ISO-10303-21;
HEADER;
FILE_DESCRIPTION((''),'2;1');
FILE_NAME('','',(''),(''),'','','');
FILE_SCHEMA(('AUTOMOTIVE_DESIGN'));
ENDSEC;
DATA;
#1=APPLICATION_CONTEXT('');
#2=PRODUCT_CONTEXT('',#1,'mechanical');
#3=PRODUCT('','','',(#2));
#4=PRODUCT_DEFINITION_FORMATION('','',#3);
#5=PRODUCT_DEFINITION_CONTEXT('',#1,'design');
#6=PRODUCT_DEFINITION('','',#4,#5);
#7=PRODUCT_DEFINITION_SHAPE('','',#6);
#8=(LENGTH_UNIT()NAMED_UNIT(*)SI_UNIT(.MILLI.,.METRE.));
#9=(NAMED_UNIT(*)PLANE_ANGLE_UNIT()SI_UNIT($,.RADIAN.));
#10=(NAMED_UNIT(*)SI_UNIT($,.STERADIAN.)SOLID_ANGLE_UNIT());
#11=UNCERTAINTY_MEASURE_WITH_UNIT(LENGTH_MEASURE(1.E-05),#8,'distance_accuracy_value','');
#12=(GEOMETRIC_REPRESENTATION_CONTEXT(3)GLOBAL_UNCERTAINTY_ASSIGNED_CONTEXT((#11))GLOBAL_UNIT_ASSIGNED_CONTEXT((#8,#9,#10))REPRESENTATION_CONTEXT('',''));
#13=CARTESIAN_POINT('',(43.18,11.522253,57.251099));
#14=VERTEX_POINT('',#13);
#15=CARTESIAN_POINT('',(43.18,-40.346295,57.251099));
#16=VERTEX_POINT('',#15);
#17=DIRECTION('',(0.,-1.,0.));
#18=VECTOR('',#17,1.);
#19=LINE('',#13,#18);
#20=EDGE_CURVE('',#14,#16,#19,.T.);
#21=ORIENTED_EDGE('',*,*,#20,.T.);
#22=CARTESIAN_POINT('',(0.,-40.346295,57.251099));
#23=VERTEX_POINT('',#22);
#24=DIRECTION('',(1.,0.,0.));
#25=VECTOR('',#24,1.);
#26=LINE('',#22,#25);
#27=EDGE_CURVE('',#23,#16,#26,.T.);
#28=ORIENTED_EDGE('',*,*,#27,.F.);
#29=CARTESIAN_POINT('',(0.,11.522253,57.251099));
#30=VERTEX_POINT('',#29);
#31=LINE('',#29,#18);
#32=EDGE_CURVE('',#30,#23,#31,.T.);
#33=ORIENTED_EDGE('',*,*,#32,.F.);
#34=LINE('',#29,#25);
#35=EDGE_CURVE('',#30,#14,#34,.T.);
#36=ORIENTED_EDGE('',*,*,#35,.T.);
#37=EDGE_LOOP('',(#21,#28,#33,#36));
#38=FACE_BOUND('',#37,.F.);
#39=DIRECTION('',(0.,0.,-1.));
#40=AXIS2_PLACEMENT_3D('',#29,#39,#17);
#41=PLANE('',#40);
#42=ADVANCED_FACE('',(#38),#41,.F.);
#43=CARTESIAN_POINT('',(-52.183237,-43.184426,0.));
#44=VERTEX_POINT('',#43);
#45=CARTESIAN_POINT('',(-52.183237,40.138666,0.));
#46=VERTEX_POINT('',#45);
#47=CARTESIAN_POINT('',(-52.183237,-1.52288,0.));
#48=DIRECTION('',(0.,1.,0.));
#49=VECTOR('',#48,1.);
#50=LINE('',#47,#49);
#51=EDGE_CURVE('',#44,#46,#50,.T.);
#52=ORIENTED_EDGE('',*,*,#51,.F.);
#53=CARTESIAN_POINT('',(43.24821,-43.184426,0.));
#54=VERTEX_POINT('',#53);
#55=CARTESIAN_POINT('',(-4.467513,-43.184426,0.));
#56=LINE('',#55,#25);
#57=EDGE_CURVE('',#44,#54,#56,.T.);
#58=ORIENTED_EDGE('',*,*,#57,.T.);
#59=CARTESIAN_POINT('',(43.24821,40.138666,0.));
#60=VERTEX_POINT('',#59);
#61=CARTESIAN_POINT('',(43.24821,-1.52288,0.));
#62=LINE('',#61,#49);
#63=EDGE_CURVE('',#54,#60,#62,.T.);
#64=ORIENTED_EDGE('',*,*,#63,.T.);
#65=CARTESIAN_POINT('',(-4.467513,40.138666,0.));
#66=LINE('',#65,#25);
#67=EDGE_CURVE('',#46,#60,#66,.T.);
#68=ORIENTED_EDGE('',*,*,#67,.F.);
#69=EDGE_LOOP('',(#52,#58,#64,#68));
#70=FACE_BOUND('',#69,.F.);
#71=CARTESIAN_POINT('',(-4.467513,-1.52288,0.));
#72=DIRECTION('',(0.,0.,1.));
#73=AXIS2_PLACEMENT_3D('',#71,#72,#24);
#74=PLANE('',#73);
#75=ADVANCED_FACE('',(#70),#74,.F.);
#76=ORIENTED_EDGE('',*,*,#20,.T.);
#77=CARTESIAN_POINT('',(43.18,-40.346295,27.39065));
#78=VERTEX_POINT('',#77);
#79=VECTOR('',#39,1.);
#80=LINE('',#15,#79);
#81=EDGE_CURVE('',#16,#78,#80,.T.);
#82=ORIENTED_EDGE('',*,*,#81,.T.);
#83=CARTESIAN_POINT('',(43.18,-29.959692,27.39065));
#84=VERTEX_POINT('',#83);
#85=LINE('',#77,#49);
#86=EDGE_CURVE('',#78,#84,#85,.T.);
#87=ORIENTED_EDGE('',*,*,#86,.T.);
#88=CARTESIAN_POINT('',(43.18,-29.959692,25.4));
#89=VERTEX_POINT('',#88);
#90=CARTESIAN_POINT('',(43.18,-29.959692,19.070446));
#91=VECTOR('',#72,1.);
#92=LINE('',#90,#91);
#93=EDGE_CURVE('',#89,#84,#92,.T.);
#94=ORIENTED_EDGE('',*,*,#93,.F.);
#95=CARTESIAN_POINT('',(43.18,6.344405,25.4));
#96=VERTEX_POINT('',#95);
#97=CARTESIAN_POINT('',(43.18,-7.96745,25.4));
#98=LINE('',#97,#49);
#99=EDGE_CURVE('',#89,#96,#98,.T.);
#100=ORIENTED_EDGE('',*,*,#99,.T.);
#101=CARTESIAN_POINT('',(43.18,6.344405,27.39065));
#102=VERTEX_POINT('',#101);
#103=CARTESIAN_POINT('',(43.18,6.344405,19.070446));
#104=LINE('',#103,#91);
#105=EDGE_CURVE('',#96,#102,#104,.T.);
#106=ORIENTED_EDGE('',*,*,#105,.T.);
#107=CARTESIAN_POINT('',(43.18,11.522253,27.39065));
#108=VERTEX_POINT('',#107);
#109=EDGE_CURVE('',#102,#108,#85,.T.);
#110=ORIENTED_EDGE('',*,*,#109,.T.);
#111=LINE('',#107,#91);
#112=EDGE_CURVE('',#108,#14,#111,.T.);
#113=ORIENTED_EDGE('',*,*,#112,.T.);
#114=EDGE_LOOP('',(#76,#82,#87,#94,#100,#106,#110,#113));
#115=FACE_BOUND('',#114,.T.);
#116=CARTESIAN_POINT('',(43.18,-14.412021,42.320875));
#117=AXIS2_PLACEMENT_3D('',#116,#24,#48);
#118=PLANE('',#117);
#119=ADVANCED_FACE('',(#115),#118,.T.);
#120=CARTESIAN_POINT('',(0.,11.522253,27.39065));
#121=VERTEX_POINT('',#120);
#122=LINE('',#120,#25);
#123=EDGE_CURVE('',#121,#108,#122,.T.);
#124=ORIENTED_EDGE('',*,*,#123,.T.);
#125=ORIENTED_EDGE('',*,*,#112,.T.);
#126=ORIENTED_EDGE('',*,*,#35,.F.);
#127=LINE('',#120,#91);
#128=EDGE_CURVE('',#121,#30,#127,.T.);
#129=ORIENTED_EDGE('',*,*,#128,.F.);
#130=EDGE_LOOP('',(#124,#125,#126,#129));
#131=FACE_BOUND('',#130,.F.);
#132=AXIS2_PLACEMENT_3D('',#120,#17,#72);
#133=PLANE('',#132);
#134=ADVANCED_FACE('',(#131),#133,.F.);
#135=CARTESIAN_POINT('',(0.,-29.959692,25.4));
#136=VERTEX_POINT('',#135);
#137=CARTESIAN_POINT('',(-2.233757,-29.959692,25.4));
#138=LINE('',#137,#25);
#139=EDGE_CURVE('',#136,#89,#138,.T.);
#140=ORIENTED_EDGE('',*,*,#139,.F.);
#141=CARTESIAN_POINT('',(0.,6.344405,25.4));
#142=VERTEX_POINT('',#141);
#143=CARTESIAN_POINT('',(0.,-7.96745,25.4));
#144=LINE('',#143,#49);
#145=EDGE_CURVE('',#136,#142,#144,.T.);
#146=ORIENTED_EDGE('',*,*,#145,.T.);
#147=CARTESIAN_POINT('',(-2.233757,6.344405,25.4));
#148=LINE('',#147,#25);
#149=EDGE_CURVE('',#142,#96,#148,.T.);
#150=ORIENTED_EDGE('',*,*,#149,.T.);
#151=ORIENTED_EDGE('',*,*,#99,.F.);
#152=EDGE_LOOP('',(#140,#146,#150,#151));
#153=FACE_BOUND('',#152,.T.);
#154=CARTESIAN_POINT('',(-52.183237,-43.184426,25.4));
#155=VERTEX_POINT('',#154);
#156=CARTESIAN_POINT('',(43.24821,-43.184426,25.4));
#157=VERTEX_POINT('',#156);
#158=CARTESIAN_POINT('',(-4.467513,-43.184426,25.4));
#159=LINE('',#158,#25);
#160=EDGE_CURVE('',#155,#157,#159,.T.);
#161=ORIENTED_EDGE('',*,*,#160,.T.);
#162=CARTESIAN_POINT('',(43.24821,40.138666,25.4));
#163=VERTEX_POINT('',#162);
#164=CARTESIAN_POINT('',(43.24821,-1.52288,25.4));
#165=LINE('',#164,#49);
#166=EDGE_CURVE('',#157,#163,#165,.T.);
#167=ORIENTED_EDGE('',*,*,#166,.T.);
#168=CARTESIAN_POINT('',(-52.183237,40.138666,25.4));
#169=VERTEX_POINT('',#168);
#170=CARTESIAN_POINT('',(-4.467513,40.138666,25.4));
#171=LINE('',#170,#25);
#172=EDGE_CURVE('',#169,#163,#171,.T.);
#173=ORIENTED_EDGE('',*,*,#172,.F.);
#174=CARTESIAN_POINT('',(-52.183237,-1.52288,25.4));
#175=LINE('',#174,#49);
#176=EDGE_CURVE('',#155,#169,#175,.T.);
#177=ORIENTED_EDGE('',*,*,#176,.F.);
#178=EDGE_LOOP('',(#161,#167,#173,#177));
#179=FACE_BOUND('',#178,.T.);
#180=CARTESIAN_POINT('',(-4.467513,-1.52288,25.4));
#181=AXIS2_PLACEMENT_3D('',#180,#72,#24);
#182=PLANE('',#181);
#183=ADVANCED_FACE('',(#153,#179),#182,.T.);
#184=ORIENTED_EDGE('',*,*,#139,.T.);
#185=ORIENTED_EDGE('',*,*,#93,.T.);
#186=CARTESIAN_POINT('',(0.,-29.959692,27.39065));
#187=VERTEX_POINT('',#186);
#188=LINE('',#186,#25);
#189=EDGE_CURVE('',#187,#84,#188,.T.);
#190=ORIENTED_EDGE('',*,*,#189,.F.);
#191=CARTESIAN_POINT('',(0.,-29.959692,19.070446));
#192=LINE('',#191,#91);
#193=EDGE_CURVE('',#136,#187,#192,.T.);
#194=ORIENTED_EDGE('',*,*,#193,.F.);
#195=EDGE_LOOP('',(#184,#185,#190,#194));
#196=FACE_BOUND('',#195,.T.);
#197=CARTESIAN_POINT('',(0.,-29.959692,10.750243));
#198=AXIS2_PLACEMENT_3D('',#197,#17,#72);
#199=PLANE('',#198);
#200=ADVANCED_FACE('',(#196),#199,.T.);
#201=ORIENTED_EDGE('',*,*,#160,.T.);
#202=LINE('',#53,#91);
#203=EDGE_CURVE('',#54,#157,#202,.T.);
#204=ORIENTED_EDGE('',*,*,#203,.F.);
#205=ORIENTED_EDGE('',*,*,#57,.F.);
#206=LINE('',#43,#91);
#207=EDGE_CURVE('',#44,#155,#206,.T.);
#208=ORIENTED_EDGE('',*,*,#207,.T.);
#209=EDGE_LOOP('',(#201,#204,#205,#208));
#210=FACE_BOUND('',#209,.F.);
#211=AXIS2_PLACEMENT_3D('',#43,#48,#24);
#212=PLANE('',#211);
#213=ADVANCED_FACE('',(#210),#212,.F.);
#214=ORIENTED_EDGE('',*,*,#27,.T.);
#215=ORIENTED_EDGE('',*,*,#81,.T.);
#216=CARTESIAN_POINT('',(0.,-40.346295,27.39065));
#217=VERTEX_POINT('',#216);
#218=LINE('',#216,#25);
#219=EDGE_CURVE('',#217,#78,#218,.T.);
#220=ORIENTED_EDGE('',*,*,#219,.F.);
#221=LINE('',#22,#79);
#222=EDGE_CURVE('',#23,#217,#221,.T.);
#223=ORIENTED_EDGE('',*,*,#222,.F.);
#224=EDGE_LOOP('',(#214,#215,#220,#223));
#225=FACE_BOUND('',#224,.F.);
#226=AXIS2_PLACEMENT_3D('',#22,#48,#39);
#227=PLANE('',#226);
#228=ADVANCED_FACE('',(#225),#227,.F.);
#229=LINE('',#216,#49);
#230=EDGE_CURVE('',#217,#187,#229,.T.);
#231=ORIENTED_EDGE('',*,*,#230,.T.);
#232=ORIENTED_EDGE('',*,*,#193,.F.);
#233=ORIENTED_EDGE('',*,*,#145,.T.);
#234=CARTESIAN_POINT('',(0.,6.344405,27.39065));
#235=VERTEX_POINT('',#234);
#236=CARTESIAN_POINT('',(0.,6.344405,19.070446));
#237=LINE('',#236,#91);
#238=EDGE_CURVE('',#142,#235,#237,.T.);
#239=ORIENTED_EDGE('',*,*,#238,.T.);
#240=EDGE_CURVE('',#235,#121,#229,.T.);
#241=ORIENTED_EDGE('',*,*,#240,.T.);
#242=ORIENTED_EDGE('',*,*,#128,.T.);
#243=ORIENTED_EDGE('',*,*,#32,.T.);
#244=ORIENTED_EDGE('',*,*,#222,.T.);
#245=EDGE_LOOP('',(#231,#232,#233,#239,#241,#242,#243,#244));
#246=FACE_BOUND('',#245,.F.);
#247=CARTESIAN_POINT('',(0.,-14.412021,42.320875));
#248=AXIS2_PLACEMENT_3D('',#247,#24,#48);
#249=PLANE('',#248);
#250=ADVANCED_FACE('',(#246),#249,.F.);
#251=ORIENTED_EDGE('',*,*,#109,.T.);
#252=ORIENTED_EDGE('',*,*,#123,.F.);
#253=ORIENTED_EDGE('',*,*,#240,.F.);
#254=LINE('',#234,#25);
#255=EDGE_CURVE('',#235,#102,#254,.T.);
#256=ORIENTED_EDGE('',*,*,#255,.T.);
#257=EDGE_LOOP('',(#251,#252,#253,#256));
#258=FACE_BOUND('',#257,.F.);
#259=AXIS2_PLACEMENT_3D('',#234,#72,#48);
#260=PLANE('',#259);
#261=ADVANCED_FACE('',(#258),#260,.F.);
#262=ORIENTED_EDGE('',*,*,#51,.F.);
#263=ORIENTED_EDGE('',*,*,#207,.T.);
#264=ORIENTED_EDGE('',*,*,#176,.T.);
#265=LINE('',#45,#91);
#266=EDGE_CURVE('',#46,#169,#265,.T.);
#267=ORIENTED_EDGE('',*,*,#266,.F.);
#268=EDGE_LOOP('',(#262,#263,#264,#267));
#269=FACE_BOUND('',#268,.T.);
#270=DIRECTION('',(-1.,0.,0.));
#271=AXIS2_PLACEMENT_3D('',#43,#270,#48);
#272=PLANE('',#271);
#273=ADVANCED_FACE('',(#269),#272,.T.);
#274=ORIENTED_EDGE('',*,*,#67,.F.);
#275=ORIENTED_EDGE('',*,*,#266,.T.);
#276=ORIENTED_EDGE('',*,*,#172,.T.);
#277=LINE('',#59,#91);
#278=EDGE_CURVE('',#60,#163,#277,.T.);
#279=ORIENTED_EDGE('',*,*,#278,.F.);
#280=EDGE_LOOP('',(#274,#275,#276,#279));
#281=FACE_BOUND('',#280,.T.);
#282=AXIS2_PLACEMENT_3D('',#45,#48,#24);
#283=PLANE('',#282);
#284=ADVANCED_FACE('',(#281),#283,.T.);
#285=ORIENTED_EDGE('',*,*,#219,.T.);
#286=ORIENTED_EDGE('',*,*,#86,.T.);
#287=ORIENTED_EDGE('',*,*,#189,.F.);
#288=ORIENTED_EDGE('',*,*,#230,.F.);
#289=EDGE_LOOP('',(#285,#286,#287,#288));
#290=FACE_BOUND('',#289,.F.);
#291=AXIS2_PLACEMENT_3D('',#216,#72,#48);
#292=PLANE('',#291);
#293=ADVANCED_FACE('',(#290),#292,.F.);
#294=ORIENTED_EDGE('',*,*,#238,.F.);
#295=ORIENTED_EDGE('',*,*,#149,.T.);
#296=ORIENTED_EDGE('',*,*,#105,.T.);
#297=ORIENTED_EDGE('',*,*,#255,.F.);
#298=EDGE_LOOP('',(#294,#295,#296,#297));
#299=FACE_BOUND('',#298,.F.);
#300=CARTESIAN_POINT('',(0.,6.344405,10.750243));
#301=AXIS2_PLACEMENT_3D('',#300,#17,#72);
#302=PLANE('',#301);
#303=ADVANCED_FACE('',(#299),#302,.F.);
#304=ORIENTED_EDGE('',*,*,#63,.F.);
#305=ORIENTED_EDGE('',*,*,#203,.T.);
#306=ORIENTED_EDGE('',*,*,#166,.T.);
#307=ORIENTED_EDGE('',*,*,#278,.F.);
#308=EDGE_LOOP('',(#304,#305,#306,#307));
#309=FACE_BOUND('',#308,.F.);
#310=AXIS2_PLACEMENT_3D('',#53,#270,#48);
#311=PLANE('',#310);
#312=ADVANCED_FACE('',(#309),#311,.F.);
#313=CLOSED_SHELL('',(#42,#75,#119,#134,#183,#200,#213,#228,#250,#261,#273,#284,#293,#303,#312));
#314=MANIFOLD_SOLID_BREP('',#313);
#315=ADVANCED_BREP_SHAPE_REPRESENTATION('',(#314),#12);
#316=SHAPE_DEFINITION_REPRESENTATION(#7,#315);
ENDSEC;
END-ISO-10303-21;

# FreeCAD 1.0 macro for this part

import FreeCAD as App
import Part
import Sketcher
from FreeCAD import Vector
Q = App.Units.Quantity


def add_polygon(sketch, points):
    """Adds a closed chain of lines whose ends are joined by coincident constraints."""
    first, n = sketch.GeometryCount, len(points)
    for a, b in zip(points, points[1:] + points[:1]):
        sketch.addGeometry(Part.LineSegment(App.Vector(*a, 0), App.Vector(*b, 0)), False)
    for i in range(n):
        sketch.addConstraint(Sketcher.Constraint("Coincident", first + i, 2, first + (i + 1) % n, 1))

doc = App.newDocument("Part")
body = doc.addObject("PartDesign::Body", "Body")

sketch1 = doc.addObject("Sketcher::SketchObject", "Sketch")
body.addObject(sketch1)
sketch1.AttachmentSupport = (doc.XY_Plane, [""])
sketch1.MapMode = "FlatFace"
add_polygon(sketch1, [(-52.183237, 40.138666), (-52.183237, -43.184426), (43.24821, -43.184426), (43.24821, 40.138666)])
sketch1.addConstraint([
    Sketcher.Constraint("Vertical", 0),
    Sketcher.Constraint("Horizontal", 1),
    Sketcher.Constraint("Vertical", 2),
    Sketcher.Constraint("Horizontal", 3),
    Sketcher.Constraint("DistanceY", 0, 2, 0, 1, 83.323091),
    Sketcher.Constraint("DistanceX", 1, 1, 1, 2, 95.431447),
    Sketcher.Constraint("DistanceX", -1, 1, 1, 2, 43.24821),
    Sketcher.Constraint("DistanceY", 0, 2, -1, 1, 43.184426),
])
pad1 = doc.addObject("PartDesign::Pad", "Pad")
body.addObject(pad1)
pad1.Profile = sketch1
pad1.Length = Q("1 in")

sketch2 = doc.addObject("Sketcher::SketchObject", "Sketch001")
body.addObject(sketch2)
sketch2.AttachmentSupport = (doc.YZ_Plane, [""])
sketch2.MapMode = "FlatFace"
add_polygon(sketch2, [(-40.346295, 57.251099), (-40.346295, 27.39065), (-29.959692, 27.39065), (-29.959692, 10.750243), (6.344405, 10.750243), (6.344405, 27.39065), (11.522253, 27.39065), (11.522253, 57.251099)])
sketch2.addConstraint([
    Sketcher.Constraint("Vertical", 0),
    Sketcher.Constraint("Horizontal", 1),
    Sketcher.Constraint("Vertical", 2),
    Sketcher.Constraint("Horizontal", 3),
    Sketcher.Constraint("Vertical", 4),
    Sketcher.Constraint("Horizontal", 5),
    Sketcher.Constraint("Vertical", 6),
    Sketcher.Constraint("Horizontal", 7),
    Sketcher.Constraint("Horizontal", 1, 2, 4, 2),
    Sketcher.Constraint("DistanceX", 5, 1, 5, 2, 5.177848),
    Sketcher.Constraint("DistanceY", 0, 2, 0, 1, 29.86045),
    Sketcher.Constraint("DistanceY", -1, 1, 6, 2, 57.251099),
    Sketcher.Constraint("DistanceX", 0, 2, 3, 2, 46.6907),
    Sketcher.Constraint("DistanceX", 1, 1, 1, 2, 10.386603),
    Sketcher.Constraint("DistanceY", 2, 2, 2, 1, 16.640407),
    Sketcher.Constraint("DistanceX", 1, 2, -1, 1, 29.959692),
])
pad2 = doc.addObject("PartDesign::Pad", "Pad001")
body.addObject(pad2)
pad2.Profile = sketch2
pad2.Length = Q("1.7 in")

doc.recompute()
